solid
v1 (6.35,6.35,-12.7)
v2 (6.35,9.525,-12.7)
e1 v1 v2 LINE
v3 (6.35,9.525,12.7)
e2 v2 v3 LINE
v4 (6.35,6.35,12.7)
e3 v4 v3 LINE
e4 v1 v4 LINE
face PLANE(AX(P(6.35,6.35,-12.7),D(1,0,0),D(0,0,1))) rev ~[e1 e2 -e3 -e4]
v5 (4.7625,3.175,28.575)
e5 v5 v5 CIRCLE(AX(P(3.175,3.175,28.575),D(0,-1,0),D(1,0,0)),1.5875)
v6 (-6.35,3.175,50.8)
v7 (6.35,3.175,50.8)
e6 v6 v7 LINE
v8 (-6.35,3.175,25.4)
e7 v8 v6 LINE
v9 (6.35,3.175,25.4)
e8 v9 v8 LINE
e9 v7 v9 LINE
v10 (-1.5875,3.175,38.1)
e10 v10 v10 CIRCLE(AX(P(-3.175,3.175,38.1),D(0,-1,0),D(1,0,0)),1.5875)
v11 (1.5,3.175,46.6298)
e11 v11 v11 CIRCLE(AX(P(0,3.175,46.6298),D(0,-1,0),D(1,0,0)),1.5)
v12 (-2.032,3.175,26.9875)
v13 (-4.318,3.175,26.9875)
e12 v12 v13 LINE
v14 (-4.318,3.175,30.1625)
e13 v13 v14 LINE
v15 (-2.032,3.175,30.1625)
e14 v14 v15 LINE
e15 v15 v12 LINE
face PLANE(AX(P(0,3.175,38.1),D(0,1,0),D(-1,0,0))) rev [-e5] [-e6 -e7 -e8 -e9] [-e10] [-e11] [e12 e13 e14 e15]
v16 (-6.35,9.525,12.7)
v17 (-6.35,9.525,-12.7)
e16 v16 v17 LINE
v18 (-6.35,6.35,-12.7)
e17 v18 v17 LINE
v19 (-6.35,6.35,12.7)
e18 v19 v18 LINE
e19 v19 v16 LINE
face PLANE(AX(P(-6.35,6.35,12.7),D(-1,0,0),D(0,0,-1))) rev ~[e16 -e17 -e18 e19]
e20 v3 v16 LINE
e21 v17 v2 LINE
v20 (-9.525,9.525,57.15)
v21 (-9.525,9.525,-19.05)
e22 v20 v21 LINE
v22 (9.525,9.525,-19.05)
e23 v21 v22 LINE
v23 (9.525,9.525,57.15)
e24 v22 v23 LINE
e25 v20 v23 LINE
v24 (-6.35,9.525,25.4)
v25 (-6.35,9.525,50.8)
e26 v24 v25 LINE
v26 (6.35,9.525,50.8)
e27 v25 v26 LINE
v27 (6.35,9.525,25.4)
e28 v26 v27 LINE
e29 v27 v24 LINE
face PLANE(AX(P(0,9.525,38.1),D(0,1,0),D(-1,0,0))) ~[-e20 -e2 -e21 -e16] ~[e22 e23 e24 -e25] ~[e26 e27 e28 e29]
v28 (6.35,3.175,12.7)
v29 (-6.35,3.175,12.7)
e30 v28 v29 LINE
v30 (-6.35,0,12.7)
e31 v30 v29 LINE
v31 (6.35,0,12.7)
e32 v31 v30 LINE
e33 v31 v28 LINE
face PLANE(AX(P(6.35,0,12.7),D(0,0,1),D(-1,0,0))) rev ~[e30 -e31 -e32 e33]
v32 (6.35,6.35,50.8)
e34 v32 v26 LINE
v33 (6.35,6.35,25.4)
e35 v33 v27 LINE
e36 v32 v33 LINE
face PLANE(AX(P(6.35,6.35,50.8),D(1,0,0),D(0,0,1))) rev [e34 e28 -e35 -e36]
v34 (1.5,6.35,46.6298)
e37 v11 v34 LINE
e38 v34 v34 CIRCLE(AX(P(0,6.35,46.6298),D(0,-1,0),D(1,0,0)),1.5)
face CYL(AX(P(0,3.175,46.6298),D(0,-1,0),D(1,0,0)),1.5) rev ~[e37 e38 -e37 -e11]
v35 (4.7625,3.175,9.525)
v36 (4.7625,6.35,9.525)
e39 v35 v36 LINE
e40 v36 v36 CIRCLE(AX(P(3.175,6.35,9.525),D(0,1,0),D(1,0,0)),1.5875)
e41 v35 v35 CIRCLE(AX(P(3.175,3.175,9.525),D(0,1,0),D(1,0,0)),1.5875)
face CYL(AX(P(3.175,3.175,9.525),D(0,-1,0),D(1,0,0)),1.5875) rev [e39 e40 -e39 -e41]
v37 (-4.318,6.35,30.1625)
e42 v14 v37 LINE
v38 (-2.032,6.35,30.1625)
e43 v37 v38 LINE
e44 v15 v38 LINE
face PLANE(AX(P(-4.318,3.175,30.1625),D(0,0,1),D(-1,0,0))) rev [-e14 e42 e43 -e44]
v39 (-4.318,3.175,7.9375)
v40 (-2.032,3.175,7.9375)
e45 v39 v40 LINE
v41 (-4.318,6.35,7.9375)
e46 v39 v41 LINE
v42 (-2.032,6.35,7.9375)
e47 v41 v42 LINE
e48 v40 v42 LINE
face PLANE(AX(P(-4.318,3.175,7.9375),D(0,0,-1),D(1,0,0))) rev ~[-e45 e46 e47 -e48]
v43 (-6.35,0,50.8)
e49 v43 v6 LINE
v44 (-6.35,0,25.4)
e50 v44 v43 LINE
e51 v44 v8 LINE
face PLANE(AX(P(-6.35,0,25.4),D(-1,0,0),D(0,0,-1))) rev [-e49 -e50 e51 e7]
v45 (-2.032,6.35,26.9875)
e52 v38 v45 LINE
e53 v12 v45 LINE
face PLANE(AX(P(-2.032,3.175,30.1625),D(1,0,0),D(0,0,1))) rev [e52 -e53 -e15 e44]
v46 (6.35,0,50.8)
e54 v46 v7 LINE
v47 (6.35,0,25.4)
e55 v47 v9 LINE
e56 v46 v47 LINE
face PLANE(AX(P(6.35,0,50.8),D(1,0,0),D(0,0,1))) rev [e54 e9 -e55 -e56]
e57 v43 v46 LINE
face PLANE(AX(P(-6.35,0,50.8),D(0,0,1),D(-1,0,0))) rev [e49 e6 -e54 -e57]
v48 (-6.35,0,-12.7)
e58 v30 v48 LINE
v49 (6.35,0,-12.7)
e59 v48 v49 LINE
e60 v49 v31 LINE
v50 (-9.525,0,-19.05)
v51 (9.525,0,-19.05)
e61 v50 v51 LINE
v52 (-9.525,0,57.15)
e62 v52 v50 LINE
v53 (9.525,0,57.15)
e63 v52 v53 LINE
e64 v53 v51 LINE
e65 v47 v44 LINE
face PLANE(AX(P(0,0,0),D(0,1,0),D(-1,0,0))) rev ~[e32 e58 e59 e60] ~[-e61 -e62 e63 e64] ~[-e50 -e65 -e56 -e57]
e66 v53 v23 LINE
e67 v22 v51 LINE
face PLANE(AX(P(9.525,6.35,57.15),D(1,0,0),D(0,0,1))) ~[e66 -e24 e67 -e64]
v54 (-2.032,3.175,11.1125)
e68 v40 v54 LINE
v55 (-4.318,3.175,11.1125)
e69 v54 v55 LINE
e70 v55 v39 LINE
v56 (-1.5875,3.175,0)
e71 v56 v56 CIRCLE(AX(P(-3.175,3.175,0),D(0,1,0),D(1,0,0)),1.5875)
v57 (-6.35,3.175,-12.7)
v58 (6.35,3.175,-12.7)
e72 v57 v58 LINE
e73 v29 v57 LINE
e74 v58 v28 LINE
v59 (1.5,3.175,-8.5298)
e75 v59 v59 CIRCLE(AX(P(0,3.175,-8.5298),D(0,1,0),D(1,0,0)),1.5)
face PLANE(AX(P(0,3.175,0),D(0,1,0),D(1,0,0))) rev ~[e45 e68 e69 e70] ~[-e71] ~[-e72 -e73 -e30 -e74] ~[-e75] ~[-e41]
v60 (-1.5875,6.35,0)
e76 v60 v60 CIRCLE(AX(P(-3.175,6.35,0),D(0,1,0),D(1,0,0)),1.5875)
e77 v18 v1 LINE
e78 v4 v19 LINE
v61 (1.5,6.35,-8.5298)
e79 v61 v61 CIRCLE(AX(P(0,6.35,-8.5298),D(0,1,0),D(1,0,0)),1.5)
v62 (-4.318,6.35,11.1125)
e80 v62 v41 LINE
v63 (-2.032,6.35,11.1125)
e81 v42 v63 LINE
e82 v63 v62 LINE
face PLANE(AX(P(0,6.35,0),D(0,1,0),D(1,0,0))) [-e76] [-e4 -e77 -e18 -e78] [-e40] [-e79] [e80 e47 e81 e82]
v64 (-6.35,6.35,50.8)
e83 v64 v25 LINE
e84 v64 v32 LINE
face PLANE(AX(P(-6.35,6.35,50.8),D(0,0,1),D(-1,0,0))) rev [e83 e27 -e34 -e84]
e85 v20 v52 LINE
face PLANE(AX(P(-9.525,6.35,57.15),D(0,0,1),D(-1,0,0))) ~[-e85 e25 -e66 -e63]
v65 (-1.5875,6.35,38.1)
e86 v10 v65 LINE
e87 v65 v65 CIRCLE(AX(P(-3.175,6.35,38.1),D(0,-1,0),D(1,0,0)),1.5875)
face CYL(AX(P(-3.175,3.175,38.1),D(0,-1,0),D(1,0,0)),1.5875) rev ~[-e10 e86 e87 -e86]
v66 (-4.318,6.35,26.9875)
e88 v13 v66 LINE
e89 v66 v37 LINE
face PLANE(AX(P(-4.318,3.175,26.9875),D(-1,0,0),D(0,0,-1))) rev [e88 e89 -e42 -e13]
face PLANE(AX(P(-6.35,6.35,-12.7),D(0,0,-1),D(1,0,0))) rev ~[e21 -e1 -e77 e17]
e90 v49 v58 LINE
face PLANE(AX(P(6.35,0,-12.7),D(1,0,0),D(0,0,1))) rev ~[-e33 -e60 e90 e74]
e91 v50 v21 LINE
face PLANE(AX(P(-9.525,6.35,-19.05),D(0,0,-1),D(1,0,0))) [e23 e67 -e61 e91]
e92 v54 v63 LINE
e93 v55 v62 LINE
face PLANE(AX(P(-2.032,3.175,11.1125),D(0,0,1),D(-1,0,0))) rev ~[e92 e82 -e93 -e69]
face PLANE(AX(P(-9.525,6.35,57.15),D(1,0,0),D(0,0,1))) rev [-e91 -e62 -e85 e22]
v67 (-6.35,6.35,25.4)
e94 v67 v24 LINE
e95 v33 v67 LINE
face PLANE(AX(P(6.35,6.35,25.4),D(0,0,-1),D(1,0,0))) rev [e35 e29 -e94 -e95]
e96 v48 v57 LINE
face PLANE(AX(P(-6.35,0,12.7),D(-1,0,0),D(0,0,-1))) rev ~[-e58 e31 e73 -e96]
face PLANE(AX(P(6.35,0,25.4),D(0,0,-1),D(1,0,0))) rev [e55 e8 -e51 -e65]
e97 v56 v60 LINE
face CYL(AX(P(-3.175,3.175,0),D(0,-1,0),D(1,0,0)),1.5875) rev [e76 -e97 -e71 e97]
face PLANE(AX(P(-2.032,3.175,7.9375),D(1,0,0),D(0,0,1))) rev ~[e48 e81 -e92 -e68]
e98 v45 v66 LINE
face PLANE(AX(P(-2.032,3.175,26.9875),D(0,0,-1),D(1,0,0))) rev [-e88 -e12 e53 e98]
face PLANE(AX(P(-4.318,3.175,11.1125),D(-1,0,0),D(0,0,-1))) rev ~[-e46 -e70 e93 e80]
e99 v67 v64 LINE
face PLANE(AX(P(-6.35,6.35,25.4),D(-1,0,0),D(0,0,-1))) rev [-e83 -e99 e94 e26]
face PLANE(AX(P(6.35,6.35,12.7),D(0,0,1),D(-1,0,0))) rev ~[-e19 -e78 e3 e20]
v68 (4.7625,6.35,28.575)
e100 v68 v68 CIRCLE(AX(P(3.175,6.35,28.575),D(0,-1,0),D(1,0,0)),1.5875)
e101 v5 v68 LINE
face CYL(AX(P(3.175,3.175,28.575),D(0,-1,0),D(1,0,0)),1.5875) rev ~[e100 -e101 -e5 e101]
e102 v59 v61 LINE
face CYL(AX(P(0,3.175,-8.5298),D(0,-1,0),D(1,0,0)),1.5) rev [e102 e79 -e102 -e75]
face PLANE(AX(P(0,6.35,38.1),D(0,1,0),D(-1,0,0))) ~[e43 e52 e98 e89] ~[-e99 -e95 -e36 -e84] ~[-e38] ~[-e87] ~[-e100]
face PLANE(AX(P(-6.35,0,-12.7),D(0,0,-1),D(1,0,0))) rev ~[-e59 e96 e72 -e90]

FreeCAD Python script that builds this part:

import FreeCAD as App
import Part
import Sketcher
Q = App.Units.Quantity


def add_polygon(sketch, points):
    """Adds a closed chain of lines whose ends are joined by coincident constraints."""
    first, n = sketch.GeometryCount, len(points)
    for a, b in zip(points, points[1:] + points[:1]):
        sketch.addGeometry(Part.LineSegment(App.Vector(*a, 0), App.Vector(*b, 0)), False)
    for i in range(n):
        sketch.addConstraint(Sketcher.Constraint("Coincident", first + i, 2, first + (i + 1) % n, 1))

doc = App.newDocument("Part")
params = doc.addObject("Spreadsheet::Sheet", "Params")
for row, (alias, value) in enumerate([
    ("sketch1_height", "1 in"),
    ("sketch1_width", "0.5 in"),
    ("sketch1_height2", "1.5 in"),
    ("sketch1_width2", "0.75 in"),
    ("pad1_length", "0.125 in"),
    ("sketch2_diameter", "0.125 in"),
    ("sketch2_height", "0.125 in"),
    ("sketch2_height2", "1.5 in"),
    ("sketch2_width", "0.75 in"),
    ("sketch2_width2", "0.09 in"),
    ("pad2_length", "0.125 in"),
    ("sketch3_height", "1 in"),
    ("sketch3_width", "0.5 in"),
    ("sketch3_height2", "1.5 in"),
    ("sketch3_width2", "0.75 in"),
    ("pad3_length", "0.125 in"),
], start=1):
    params.set(f"A{row}", alias)
    params.set(f"B{row}", "=" + value)
    params.setAlias(f"B{row}", alias)

body = doc.addObject("PartDesign::Body", "Body")

# Sketch on XZ plane
sketch1 = doc.addObject("Sketcher::SketchObject", "Sketch")
body.addObject(sketch1)
sketch1.AttachmentSupport = (doc.XZ_Plane, [""])
sketch1.MapMode = "FlatFace"
add_polygon(sketch1, [(-10, 19), (10, 19), (10, -19), (-10, -19)])  # lines 0-3
add_polygon(sketch1, [(-6, 13), (-6, -13), (6, -13), (6, 13)])  # lines 4-7
sketch1.addConstraint([
    Sketcher.Constraint("Horizontal", 0),
    Sketcher.Constraint("Vertical", 1),
    Sketcher.Constraint("Horizontal", 2),
    Sketcher.Constraint("Vertical", 3),
    Sketcher.Constraint("Vertical", 4),
    Sketcher.Constraint("Horizontal", 5),
    Sketcher.Constraint("Vertical", 6),
    Sketcher.Constraint("Horizontal", 7),
    Sketcher.Constraint("Symmetric", 0, 2, 2, 2, -1, 1),
    Sketcher.Constraint("Symmetric", 4, 2, 6, 2, -1, 1),
    Sketcher.Constraint("DistanceY", 4, 2, 4, 1, Q("1 in")),
    Sketcher.Constraint("DistanceX", 5, 1, 5, 2, Q("0.5 in")),
    Sketcher.Constraint("DistanceY", 1, 2, 1, 1, Q("1.5 in")),
    Sketcher.Constraint("DistanceX", 0, 1, 0, 2, Q("0.75 in")),
])
sketch1.setExpression("Constraints[18]", "Params.sketch1_height")
sketch1.setExpression("Constraints[19]", "Params.sketch1_width")
sketch1.setExpression("Constraints[20]", "Params.sketch1_height2")
sketch1.setExpression("Constraints[21]", "Params.sketch1_width2")
pad1 = doc.addObject("PartDesign::Pad", "Pad")
body.addObject(pad1)
pad1.Profile = sketch1
pad1.setExpression("Length", "Params.pad1_length")
pad1.Reversed = True

# Sketch on XZ plane
sketch2 = doc.addObject("Sketcher::SketchObject", "Sketch001")
body.addObject(sketch2)
sketch2.AttachmentSupport = (doc.XZ_Plane, [""])
sketch2.MapMode = "FlatFace"
sketch2.AttachmentOffset = App.Placement(App.Vector(0, 0, -0.125 * 25.4), App.Rotation())
add_polygon(sketch2, [(9.5, -19.1), (-9.5, -19.1), (-9.5, 19.1), (9.5, 19.1)])  # lines 0-3
add_polygon(sketch2, [(-4.3, 11.1), (-4.3, 7.9), (-2, 7.9), (-2, 11.1)])  # lines 4-7
sketch2.addGeometry(Part.Circle(App.Vector(3.2, 9.5, 0), App.Vector(0, 0, 1), 1.6), False)  # 8
sketch2.addGeometry(Part.Circle(App.Vector(-3.2, 0, 0), App.Vector(0, 0, 1), 1.6), False)  # 9
sketch2.addGeometry(Part.Circle(App.Vector(0, -8.5, 0), App.Vector(0, 0, 1), 1.5), False)  # 10
sketch2.addConstraint([
    Sketcher.Constraint("Horizontal", 0),
    Sketcher.Constraint("Vertical", 1),
    Sketcher.Constraint("Horizontal", 2),
    Sketcher.Constraint("Vertical", 3),
    Sketcher.Constraint("Vertical", 4),
    Sketcher.Constraint("Horizontal", 5),
    Sketcher.Constraint("Vertical", 6),
    Sketcher.Constraint("Horizontal", 7),
    Sketcher.Constraint("Equal", 8, 9),
    Sketcher.Constraint("Symmetric", 0, 2, 2, 2, -1, 1),
    Sketcher.Constraint("PointOnObject", 9, 3, -1),
    Sketcher.Constraint("PointOnObject", 10, 3, -2),
    Sketcher.Constraint("Diameter", 8, Q("0.125 in")),
    Sketcher.Constraint("Diameter", 10, Q("0.1181 in")),
    Sketcher.Constraint("DistanceY", 4, 2, 4, 1, Q("0.125 in")),
    Sketcher.Constraint("DistanceY", 1, 1, 1, 2, Q("1.5 in")),
    Sketcher.Constraint("DistanceX", -1, 1, 8, 3, Q("0.125 in")),
    Sketcher.Constraint("DistanceX", 9, 3, -1, 1, Q("0.125 in")),
    Sketcher.Constraint("DistanceX", 0, 2, 0, 1, Q("0.75 in")),
    Sketcher.Constraint("DistanceX", 5, 1, 5, 2, Q("0.09 in")),
    Sketcher.Constraint("DistanceX", 4, 2, -1, 1, Q("0.17 in")),
    Sketcher.Constraint("DistanceY", -1, 1, 8, 3, Q("0.375 in")),
    Sketcher.Constraint("DistanceY", -1, 1, 4, 2, Q("0.3125 in")),
    Sketcher.Constraint("DistanceY", 10, 3, -1, 1, 8.5298),
])
sketch2.setExpression("Constraints[20]", "Params.sketch2_diameter")
sketch2.setExpression("Constraints[22]", "Params.sketch2_height")
sketch2.setExpression("Constraints[23]", "Params.sketch2_height2")
sketch2.setExpression("Constraints[26]", "Params.sketch2_width")
sketch2.setExpression("Constraints[27]", "Params.sketch2_width2")
pad2 = doc.addObject("PartDesign::Pad", "Pad001")
body.addObject(pad2)
pad2.Profile = sketch2
pad2.setExpression("Length", "Params.pad2_length")
pad2.Reversed = True

# Sketch on XZ plane
sketch3 = doc.addObject("Sketcher::SketchObject", "Sketch002")
body.addObject(sketch3)
sketch3.AttachmentSupport = (doc.XZ_Plane, [""])
sketch3.MapMode = "FlatFace"
sketch3.AttachmentOffset = App.Placement(App.Vector(0, 0, -0.25 * 25.4), App.Rotation())
add_polygon(sketch3, [(10, -19), (-10, -19), (-10, 19), (10, 19)])  # lines 0-3
add_polygon(sketch3, [(6, -13), (6, 13), (-6, 13), (-6, -13)])  # lines 4-7
sketch3.addConstraint([
    Sketcher.Constraint("Horizontal", 0),
    Sketcher.Constraint("Vertical", 1),
    Sketcher.Constraint("Horizontal", 2),
    Sketcher.Constraint("Vertical", 3),
    Sketcher.Constraint("Vertical", 4),
    Sketcher.Constraint("Horizontal", 5),
    Sketcher.Constraint("Vertical", 6),
    Sketcher.Constraint("Horizontal", 7),
    Sketcher.Constraint("Symmetric", 0, 2, 2, 2, -1, 1),
    Sketcher.Constraint("Symmetric", 4, 2, 6, 2, -1, 1),
    Sketcher.Constraint("DistanceY", 4, 1, 4, 2, Q("1 in")),
    Sketcher.Constraint("DistanceX", 5, 2, 5, 1, Q("0.5 in")),
    Sketcher.Constraint("DistanceY", 1, 1, 1, 2, Q("1.5 in")),
    Sketcher.Constraint("DistanceX", 0, 2, 0, 1, Q("0.75 in")),
])
sketch3.setExpression("Constraints[18]", "Params.sketch3_height")
sketch3.setExpression("Constraints[19]", "Params.sketch3_width")
sketch3.setExpression("Constraints[20]", "Params.sketch3_height2")
sketch3.setExpression("Constraints[21]", "Params.sketch3_width2")
pad3 = doc.addObject("PartDesign::Pad", "Pad002")
body.addObject(pad3)
pad3.Profile = sketch3
pad3.setExpression("Length", "Params.pad3_length")
pad3.Reversed = True
doc.recompute()

datumplane = doc.addObject("PartDesign::Plane", "DatumPlane")
body.addObject(datumplane)
datumplane.AttachmentSupport = (doc.XY_Plane, [""])
datumplane.MapMode = "FlatFace"
datumplane.AttachmentOffset = App.Placement(App.Vector(0, 0, 0.75 * 25.4), App.Rotation())
mirrored = doc.addObject("PartDesign::Mirrored", "Mirrored")
body.addObject(mirrored)
mirrored.Originals = [pad1, pad2, pad3]
mirrored.MirrorPlane = (datumplane, [""])
body.Tip = mirrored

doc.recompute()
